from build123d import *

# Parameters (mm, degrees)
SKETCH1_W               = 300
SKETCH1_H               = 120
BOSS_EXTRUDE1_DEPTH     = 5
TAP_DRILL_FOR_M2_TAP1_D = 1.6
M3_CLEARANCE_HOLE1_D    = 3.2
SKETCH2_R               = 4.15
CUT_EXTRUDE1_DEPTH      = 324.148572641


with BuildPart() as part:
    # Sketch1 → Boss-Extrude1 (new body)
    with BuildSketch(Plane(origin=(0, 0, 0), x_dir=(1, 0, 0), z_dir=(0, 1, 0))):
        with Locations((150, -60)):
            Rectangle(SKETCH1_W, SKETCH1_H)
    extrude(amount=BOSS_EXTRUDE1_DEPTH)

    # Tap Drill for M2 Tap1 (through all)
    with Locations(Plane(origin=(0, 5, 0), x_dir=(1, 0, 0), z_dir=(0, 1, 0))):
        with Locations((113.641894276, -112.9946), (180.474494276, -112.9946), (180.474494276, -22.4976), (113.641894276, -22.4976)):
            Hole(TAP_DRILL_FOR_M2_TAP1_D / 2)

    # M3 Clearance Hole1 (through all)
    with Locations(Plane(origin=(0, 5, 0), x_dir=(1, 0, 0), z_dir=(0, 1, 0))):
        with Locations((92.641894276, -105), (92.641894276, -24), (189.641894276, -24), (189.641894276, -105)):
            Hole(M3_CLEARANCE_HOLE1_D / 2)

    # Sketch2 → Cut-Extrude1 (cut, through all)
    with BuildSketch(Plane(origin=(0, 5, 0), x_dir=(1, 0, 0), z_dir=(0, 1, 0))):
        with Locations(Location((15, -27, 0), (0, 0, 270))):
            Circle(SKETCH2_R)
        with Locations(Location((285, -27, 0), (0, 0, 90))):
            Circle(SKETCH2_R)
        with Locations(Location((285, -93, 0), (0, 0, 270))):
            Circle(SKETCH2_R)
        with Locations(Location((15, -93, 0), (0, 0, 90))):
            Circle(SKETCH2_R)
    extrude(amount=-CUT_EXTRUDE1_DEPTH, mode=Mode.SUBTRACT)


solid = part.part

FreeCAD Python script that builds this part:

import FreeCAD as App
import Part
import Sketcher
Q = App.Units.Quantity

doc = App.newDocument("Part")
body = doc.addObject("PartDesign::Body", "Body")

# Sketch on XZ plane
sketch1 = body.newObject("Sketcher::SketchObject", "Sketch")
sketch1.AttachmentSupport = (doc.getObject("XZ_Plane"), [""])
sketch1.MapMode = "FlatFace"
sketch1.addGeometry([
    Part.LineSegment(App.Vector(0, 0, 0), App.Vector(0, 120, 0)),
    Part.LineSegment(App.Vector(0, 120, 0), App.Vector(300, 120, 0)),
    Part.LineSegment(App.Vector(300, 120, 0), App.Vector(300, 0, 0)),
    Part.LineSegment(App.Vector(300, 0, 0), App.Vector(0, 0, 0)),
], False)
sketch1.addConstraint([
    Sketcher.Constraint("Coincident", 0, 2, 1, 1),
    Sketcher.Constraint("Coincident", 1, 2, 2, 1),
    Sketcher.Constraint("Coincident", 2, 2, 3, 1),
    Sketcher.Constraint("Coincident", 3, 2, 0, 1),
    Sketcher.Constraint("Vertical", 0),
    Sketcher.Constraint("Horizontal", 1),
    Sketcher.Constraint("Vertical", 2),
    Sketcher.Constraint("Horizontal", 3),
    Sketcher.Constraint("Coincident", 3, 2, -1, 1),
    Sketcher.Constraint("DistanceX", 1, 1, 1, 2, Q("300 mm")),
    Sketcher.Constraint("DistanceY", 0, 1, 0, 2, Q("120 mm")),
])
pad1 = body.newObject("PartDesign::Pad", "Pad")
pad1.Profile = sketch1
pad1.Length = 5
pad1.Reversed = True

# Sketch on XZ plane
sketch2 = body.newObject("Sketcher::SketchObject", "Sketch001")
sketch2.AttachmentSupport = (doc.getObject("XZ_Plane"), [""])
sketch2.MapMode = "FlatFace"
sketch2.AttachmentOffset = App.Placement(App.Vector(0, 0, -5), App.Rotation())
sketch2.addGeometry([
    Part.Circle(App.Vector(113.641894, 112.9946, 0), App.Vector(0, 0, 1), 0.8),
    Part.Circle(App.Vector(180.474494, 112.9946, 0), App.Vector(0, 0, 1), 0.8),
    Part.Circle(App.Vector(180.474494, 22.4976, 0), App.Vector(0, 0, 1), 0.8),
    Part.Circle(App.Vector(113.641894, 22.4976, 0), App.Vector(0, 0, 1), 0.8),
], False)
sketch2.addConstraint([
    Sketcher.Constraint("Equal", 0, 1),
    Sketcher.Constraint("Equal", 1, 2),
    Sketcher.Constraint("Equal", 2, 3),
    Sketcher.Constraint("Horizontal", 0, 3, 1, 3),
    Sketcher.Constraint("Horizontal", 2, 3, 3, 3),
    Sketcher.Constraint("Vertical", 1, 3, 2, 3),
    Sketcher.Constraint("Vertical", 0, 3, 3, 3),
    Sketcher.Constraint("Diameter", 0, Q("1.6 mm")),
    Sketcher.Constraint("DistanceY", 2, 3, 1, 3, Q("90.497 mm")),
    Sketcher.Constraint("DistanceY", -1, 1, 0, 3, Q("112.9946 mm")),
    Sketcher.Constraint("DistanceX", 0, 3, 1, 3, Q("66.8326 mm")),
    Sketcher.Constraint("DistanceX", -1, 1, 0, 3, Q("113.641894 mm")),
])
doc.recompute()
hole = body.newObject("PartDesign::Hole", "Hole")
hole.Profile = sketch2
hole.ThreadType = "None"
hole.Diameter = 1.6
hole.DepthType = "ThroughAll"
hole.Reversed = True

# Sketch on XZ plane
sketch3 = body.newObject("Sketcher::SketchObject", "Sketch002")
sketch3.AttachmentSupport = (doc.getObject("XZ_Plane"), [""])
sketch3.MapMode = "FlatFace"
sketch3.AttachmentOffset = App.Placement(App.Vector(0, 0, -5), App.Rotation())
sketch3.addGeometry([
    Part.Circle(App.Vector(92.641894, 105, 0), App.Vector(0, 0, 1), 1.6),
    Part.Circle(App.Vector(92.641894, 24, 0), App.Vector(0, 0, 1), 1.6),
    Part.Circle(App.Vector(189.641894, 24, 0), App.Vector(0, 0, 1), 1.6),
    Part.Circle(App.Vector(189.641894, 105, 0), App.Vector(0, 0, 1), 1.6),
], False)
sketch3.addConstraint([
    Sketcher.Constraint("Equal", 0, 1),
    Sketcher.Constraint("Equal", 1, 2),
    Sketcher.Constraint("Equal", 2, 3),
    Sketcher.Constraint("Horizontal", 1, 3, 2, 3),
    Sketcher.Constraint("Horizontal", 0, 3, 3, 3),
    Sketcher.Constraint("Vertical", 0, 3, 1, 3),
    Sketcher.Constraint("Vertical", 2, 3, 3, 3),
    Sketcher.Constraint("Diameter", 0, Q("3.2 mm")),
    Sketcher.Constraint("DistanceY", -1, 1, 0, 3, Q("105 mm")),
    Sketcher.Constraint("DistanceY", -1, 1, 1, 3, Q("24 mm")),
    Sketcher.Constraint("DistanceX", 1, 3, 2, 3, Q("97 mm")),
    Sketcher.Constraint("DistanceX", -1, 1, 0, 3, Q("92.641894 mm")),
])
doc.recompute()
hole2 = body.newObject("PartDesign::Hole", "Hole001")
hole2.Profile = sketch3
hole2.ThreadType = "None"
hole2.Diameter = 3.2
hole2.DepthType = "ThroughAll"
hole2.Reversed = True

# Sketch on XZ plane
sketch4 = body.newObject("Sketcher::SketchObject", "Sketch003")
sketch4.AttachmentSupport = (doc.getObject("XZ_Plane"), [""])
sketch4.MapMode = "FlatFace"
sketch4.AttachmentOffset = App.Placement(App.Vector(0, 0, -5), App.Rotation())
sketch4.addGeometry([
    Part.Circle(App.Vector(15, 27, 0), App.Vector(0, 0, 1), 4.15),
    Part.Circle(App.Vector(285, 27, 0), App.Vector(0, 0, 1), 4.15),
    Part.Circle(App.Vector(285, 93, 0), App.Vector(0, 0, 1), 4.15),
    Part.Circle(App.Vector(15, 93, 0), App.Vector(0, 0, 1), 4.15),
], False)
sketch4.addConstraint([
    Sketcher.Constraint("Equal", 0, 1),
    Sketcher.Constraint("Equal", 1, 2),
    Sketcher.Constraint("Equal", 2, 3),
    Sketcher.Constraint("Horizontal", 0, 3, 1, 3),
    Sketcher.Constraint("Horizontal", 2, 3, 3, 3),
    Sketcher.Constraint("Vertical", 1, 3, 2, 3),
    Sketcher.Constraint("Vertical", 0, 3, 3, 3),
    Sketcher.Constraint("Diameter", 0, Q("8.3 mm")),
    Sketcher.Constraint("DistanceX", -1, 1, 0, 3, Q("15 mm")),
    Sketcher.Constraint("DistanceY", -1, 1, 0, 3, Q("27 mm")),
    Sketcher.Constraint("DistanceX", -1, 1, 1, 3, Q("285 mm")),
    Sketcher.Constraint("DistanceY", -1, 1, 2, 3, Q("93 mm")),
])
pocket1 = body.newObject("PartDesign::Pocket", "Pocket")
pocket1.Profile = sketch4
pocket1.Type = "ThroughAll"
pocket1.Reversed = True

doc.recompute()
